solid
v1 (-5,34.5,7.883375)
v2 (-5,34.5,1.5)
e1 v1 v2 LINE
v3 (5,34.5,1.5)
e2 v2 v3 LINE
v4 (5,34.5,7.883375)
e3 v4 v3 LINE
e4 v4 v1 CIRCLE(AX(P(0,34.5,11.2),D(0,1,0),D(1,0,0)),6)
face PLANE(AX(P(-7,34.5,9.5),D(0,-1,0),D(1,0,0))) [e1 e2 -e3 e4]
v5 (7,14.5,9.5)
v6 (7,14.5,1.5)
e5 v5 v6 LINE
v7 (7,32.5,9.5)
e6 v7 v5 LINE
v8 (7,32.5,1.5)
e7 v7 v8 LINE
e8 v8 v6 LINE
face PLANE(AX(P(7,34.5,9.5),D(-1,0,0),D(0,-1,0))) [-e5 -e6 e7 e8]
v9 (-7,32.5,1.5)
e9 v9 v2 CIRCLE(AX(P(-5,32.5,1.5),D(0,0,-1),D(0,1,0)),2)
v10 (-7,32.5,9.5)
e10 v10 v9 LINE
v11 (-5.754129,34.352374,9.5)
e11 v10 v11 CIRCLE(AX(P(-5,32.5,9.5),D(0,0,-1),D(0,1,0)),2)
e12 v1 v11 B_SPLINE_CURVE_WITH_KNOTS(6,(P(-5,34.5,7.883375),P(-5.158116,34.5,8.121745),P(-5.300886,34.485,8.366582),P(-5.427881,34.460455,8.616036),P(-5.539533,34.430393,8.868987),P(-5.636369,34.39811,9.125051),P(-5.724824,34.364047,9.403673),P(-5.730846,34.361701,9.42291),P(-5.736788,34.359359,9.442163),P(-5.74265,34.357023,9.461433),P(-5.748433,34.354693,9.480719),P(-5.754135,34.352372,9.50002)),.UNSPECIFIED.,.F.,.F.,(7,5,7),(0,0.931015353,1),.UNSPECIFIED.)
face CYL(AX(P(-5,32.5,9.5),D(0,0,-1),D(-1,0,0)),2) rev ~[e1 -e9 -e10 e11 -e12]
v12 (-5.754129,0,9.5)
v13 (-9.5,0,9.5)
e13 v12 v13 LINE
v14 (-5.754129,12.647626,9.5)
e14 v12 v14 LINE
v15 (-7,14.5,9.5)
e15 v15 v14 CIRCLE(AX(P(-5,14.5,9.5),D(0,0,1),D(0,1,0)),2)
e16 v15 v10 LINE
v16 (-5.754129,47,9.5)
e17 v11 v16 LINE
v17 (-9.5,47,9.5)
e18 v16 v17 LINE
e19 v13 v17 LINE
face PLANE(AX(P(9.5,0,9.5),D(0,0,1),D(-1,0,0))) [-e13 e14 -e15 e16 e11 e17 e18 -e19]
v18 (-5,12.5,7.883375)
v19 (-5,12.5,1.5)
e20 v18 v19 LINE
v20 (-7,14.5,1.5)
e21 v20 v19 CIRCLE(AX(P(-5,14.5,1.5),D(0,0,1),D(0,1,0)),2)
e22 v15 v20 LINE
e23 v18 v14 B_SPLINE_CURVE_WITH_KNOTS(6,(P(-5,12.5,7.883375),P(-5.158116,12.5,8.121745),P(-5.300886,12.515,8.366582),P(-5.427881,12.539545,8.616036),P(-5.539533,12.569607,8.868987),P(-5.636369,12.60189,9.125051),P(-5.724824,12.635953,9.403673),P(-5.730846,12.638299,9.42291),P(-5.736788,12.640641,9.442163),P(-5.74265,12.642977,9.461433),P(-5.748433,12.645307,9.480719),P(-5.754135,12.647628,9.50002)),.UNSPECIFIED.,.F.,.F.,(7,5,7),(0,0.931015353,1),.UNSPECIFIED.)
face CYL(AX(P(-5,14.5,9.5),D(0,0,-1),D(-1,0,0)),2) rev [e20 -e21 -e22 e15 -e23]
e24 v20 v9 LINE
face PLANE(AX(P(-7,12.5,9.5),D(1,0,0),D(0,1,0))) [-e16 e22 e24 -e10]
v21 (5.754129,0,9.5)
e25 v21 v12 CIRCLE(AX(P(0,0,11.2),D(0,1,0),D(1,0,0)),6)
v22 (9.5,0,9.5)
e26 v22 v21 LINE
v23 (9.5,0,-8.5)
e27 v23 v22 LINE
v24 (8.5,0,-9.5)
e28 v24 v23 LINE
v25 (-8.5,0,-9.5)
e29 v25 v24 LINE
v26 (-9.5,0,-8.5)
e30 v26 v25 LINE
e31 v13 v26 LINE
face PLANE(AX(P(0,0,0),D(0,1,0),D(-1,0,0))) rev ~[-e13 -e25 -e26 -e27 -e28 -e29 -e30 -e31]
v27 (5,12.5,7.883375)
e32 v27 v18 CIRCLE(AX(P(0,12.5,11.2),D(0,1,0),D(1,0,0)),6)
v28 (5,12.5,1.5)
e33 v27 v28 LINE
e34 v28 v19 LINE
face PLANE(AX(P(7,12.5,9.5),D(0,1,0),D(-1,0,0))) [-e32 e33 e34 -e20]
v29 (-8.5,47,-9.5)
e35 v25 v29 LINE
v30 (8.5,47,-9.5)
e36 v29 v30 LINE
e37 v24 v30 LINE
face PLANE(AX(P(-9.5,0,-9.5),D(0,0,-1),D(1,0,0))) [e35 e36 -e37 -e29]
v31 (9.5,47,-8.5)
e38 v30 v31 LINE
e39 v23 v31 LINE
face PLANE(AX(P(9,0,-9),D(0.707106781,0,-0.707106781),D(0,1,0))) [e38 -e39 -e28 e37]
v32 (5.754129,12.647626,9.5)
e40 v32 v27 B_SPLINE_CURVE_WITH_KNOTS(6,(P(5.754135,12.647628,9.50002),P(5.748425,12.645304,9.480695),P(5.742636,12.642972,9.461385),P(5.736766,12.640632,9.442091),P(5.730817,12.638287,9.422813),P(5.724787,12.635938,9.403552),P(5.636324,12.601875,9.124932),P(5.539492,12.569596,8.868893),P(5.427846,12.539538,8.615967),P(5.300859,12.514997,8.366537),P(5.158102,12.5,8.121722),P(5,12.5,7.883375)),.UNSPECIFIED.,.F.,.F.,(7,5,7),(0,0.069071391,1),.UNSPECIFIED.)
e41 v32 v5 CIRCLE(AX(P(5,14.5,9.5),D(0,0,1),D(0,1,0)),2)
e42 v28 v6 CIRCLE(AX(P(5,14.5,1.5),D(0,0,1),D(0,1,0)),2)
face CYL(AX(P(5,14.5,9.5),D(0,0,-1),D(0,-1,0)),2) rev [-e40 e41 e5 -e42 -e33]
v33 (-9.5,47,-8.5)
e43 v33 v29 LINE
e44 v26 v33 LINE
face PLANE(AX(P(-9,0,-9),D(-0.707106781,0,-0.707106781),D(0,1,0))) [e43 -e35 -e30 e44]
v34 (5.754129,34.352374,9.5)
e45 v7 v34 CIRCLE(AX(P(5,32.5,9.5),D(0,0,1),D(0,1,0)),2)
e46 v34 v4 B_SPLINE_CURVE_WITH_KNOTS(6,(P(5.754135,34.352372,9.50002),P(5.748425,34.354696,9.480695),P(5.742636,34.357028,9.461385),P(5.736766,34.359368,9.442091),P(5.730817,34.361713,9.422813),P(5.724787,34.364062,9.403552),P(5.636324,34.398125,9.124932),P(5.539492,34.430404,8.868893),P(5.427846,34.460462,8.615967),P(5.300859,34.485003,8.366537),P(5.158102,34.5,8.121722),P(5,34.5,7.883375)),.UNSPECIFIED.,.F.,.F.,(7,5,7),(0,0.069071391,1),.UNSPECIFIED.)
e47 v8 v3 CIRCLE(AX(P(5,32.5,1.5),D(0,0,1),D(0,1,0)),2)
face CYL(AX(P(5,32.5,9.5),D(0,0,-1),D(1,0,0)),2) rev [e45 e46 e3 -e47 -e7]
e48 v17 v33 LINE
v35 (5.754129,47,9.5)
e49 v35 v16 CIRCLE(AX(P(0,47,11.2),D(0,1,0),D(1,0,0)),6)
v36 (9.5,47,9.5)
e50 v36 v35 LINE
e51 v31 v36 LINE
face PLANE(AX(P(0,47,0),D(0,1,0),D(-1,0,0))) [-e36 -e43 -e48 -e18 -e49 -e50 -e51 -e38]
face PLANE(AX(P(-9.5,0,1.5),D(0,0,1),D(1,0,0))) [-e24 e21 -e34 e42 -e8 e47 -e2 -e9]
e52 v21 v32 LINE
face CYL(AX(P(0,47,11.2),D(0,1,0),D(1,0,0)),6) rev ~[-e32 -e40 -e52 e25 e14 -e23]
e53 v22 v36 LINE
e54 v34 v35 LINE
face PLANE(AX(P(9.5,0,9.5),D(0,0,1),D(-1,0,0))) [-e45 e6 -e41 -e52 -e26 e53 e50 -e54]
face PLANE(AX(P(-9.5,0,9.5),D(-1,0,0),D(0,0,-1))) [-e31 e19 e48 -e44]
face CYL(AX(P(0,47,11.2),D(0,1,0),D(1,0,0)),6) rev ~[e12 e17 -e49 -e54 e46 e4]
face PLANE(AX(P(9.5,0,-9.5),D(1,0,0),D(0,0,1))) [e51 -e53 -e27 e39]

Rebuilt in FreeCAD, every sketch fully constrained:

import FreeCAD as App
import Part
import Sketcher


def edges_at(feature, points):
    """Names of the edges that pass closest to the given points."""
    edges = feature.Shape.Edges
    near = lambda p: min(range(len(edges)), key=lambda i: edges[i].distToShape(Part.Vertex(*p))[0])
    return sorted({f"Edge{near(p) + 1}" for p in points})


def add_polygon(sketch, points):
    """Adds a closed chain of lines whose ends are joined by coincident constraints."""
    first, n = sketch.GeometryCount, len(points)
    for a, b in zip(points, points[1:] + points[:1]):
        sketch.addGeometry(Part.LineSegment(App.Vector(*a, 0), App.Vector(*b, 0)), False)
    for i in range(n):
        sketch.addConstraint(Sketcher.Constraint("Coincident", first + i, 2, first + (i + 1) % n, 1))

doc = App.newDocument("Part")
body = doc.addObject("PartDesign::Body", "Body")

# Sketch on XZ plane
sketch1 = body.newObject("Sketcher::SketchObject", "Sketch")
sketch1.AttachmentSupport = (doc.getObject("XZ_Plane"), [""])
sketch1.MapMode = "FlatFace"
add_polygon(sketch1, [(-9.5, 9.5), (9.5, 9.5), (9.5, -9.5), (-9.5, -9.5)])  # lines 0-3
sketch1.addConstraint([
    Sketcher.Constraint("Horizontal", 0),
    Sketcher.Constraint("Vertical", 1),
    Sketcher.Constraint("Horizontal", 2),
    Sketcher.Constraint("Vertical", 3),
    Sketcher.Constraint("Symmetric", 0, 2, 2, 2, -1, 1),
    Sketcher.Constraint("Equal", 2, 1),
    Sketcher.Constraint("DistanceX", 0, 1, 0, 2, 19.0),
])
pad1 = body.newObject("PartDesign::Pad", "Pad")
pad1.Profile = sketch1
pad1.Length = 47
pad1.Reversed = True

# Sketch on XY plane
sketch2 = body.newObject("Sketcher::SketchObject", "Sketch001")
sketch2.AttachmentSupport = (doc.getObject("XY_Plane"), [""])
sketch2.MapMode = "FlatFace"
sketch2.AttachmentOffset = App.Placement(App.Vector(0, 0, 9.5), App.Rotation())
add_polygon(sketch2, [(7, 34.5), (-7, 34.5), (-7, 12.5), (7, 12.5)])  # lines 0-3
sketch2.addConstraint([
    Sketcher.Constraint("Horizontal", 0),
    Sketcher.Constraint("Vertical", 1),
    Sketcher.Constraint("Horizontal", 2),
    Sketcher.Constraint("Vertical", 3),
    Sketcher.Constraint("DistanceX", 0, 2, 0, 1, 14.0),
    Sketcher.Constraint("DistanceY", 1, 2, 1, 1, 22.0),
    Sketcher.Constraint("DistanceX", 0, 2, -1, 1, 7.0),
    Sketcher.Constraint("DistanceY", -1, 1, 0, 2, 34.5),
])
pocket1 = body.newObject("PartDesign::Pocket", "Pocket")
pocket1.Profile = sketch2
pocket1.Length = 8
doc.recompute()

fillet = body.newObject("PartDesign::Fillet", "Fillet")
fillet.Base = (pocket1, edges_at(pocket1, [
    (-7, 34.5, 5.5),
    (-7, 12.5, 5.5),
    (7, 34.5, 5.5),
    (7, 12.5, 5.5),
]))
fillet.Radius = 2

# Sketch on XZ plane
sketch3 = body.newObject("Sketcher::SketchObject", "Sketch002")
sketch3.AttachmentSupport = (doc.getObject("XZ_Plane"), [""])
sketch3.MapMode = "FlatFace"
sketch3.AttachmentOffset = App.Placement(App.Vector(0, 0, -47), App.Rotation())
sketch3.addGeometry(Part.Circle(App.Vector(0, 11.2, 0), App.Vector(0, 0, 1), 6), False)
sketch3.addConstraint([
    Sketcher.Constraint("PointOnObject", 0, 3, -2),
    Sketcher.Constraint("Diameter", 0, 12.0),
    Sketcher.Constraint("DistanceY", -1, 1, 0, 3, 11.2),
])
pocket2 = body.newObject("PartDesign::Pocket", "Pocket001")
pocket2.Profile = sketch3
pocket2.Type = "ThroughAll"
pocket2.Reversed = True
doc.recompute()

chamfer = body.newObject("PartDesign::Chamfer", "Chamfer")
chamfer.Base = (pocket2, edges_at(pocket2, [(-9.5, 23.5, -9.5), (9.5, 23.5, -9.5)]))
chamfer.Size = 1

doc.recompute()
